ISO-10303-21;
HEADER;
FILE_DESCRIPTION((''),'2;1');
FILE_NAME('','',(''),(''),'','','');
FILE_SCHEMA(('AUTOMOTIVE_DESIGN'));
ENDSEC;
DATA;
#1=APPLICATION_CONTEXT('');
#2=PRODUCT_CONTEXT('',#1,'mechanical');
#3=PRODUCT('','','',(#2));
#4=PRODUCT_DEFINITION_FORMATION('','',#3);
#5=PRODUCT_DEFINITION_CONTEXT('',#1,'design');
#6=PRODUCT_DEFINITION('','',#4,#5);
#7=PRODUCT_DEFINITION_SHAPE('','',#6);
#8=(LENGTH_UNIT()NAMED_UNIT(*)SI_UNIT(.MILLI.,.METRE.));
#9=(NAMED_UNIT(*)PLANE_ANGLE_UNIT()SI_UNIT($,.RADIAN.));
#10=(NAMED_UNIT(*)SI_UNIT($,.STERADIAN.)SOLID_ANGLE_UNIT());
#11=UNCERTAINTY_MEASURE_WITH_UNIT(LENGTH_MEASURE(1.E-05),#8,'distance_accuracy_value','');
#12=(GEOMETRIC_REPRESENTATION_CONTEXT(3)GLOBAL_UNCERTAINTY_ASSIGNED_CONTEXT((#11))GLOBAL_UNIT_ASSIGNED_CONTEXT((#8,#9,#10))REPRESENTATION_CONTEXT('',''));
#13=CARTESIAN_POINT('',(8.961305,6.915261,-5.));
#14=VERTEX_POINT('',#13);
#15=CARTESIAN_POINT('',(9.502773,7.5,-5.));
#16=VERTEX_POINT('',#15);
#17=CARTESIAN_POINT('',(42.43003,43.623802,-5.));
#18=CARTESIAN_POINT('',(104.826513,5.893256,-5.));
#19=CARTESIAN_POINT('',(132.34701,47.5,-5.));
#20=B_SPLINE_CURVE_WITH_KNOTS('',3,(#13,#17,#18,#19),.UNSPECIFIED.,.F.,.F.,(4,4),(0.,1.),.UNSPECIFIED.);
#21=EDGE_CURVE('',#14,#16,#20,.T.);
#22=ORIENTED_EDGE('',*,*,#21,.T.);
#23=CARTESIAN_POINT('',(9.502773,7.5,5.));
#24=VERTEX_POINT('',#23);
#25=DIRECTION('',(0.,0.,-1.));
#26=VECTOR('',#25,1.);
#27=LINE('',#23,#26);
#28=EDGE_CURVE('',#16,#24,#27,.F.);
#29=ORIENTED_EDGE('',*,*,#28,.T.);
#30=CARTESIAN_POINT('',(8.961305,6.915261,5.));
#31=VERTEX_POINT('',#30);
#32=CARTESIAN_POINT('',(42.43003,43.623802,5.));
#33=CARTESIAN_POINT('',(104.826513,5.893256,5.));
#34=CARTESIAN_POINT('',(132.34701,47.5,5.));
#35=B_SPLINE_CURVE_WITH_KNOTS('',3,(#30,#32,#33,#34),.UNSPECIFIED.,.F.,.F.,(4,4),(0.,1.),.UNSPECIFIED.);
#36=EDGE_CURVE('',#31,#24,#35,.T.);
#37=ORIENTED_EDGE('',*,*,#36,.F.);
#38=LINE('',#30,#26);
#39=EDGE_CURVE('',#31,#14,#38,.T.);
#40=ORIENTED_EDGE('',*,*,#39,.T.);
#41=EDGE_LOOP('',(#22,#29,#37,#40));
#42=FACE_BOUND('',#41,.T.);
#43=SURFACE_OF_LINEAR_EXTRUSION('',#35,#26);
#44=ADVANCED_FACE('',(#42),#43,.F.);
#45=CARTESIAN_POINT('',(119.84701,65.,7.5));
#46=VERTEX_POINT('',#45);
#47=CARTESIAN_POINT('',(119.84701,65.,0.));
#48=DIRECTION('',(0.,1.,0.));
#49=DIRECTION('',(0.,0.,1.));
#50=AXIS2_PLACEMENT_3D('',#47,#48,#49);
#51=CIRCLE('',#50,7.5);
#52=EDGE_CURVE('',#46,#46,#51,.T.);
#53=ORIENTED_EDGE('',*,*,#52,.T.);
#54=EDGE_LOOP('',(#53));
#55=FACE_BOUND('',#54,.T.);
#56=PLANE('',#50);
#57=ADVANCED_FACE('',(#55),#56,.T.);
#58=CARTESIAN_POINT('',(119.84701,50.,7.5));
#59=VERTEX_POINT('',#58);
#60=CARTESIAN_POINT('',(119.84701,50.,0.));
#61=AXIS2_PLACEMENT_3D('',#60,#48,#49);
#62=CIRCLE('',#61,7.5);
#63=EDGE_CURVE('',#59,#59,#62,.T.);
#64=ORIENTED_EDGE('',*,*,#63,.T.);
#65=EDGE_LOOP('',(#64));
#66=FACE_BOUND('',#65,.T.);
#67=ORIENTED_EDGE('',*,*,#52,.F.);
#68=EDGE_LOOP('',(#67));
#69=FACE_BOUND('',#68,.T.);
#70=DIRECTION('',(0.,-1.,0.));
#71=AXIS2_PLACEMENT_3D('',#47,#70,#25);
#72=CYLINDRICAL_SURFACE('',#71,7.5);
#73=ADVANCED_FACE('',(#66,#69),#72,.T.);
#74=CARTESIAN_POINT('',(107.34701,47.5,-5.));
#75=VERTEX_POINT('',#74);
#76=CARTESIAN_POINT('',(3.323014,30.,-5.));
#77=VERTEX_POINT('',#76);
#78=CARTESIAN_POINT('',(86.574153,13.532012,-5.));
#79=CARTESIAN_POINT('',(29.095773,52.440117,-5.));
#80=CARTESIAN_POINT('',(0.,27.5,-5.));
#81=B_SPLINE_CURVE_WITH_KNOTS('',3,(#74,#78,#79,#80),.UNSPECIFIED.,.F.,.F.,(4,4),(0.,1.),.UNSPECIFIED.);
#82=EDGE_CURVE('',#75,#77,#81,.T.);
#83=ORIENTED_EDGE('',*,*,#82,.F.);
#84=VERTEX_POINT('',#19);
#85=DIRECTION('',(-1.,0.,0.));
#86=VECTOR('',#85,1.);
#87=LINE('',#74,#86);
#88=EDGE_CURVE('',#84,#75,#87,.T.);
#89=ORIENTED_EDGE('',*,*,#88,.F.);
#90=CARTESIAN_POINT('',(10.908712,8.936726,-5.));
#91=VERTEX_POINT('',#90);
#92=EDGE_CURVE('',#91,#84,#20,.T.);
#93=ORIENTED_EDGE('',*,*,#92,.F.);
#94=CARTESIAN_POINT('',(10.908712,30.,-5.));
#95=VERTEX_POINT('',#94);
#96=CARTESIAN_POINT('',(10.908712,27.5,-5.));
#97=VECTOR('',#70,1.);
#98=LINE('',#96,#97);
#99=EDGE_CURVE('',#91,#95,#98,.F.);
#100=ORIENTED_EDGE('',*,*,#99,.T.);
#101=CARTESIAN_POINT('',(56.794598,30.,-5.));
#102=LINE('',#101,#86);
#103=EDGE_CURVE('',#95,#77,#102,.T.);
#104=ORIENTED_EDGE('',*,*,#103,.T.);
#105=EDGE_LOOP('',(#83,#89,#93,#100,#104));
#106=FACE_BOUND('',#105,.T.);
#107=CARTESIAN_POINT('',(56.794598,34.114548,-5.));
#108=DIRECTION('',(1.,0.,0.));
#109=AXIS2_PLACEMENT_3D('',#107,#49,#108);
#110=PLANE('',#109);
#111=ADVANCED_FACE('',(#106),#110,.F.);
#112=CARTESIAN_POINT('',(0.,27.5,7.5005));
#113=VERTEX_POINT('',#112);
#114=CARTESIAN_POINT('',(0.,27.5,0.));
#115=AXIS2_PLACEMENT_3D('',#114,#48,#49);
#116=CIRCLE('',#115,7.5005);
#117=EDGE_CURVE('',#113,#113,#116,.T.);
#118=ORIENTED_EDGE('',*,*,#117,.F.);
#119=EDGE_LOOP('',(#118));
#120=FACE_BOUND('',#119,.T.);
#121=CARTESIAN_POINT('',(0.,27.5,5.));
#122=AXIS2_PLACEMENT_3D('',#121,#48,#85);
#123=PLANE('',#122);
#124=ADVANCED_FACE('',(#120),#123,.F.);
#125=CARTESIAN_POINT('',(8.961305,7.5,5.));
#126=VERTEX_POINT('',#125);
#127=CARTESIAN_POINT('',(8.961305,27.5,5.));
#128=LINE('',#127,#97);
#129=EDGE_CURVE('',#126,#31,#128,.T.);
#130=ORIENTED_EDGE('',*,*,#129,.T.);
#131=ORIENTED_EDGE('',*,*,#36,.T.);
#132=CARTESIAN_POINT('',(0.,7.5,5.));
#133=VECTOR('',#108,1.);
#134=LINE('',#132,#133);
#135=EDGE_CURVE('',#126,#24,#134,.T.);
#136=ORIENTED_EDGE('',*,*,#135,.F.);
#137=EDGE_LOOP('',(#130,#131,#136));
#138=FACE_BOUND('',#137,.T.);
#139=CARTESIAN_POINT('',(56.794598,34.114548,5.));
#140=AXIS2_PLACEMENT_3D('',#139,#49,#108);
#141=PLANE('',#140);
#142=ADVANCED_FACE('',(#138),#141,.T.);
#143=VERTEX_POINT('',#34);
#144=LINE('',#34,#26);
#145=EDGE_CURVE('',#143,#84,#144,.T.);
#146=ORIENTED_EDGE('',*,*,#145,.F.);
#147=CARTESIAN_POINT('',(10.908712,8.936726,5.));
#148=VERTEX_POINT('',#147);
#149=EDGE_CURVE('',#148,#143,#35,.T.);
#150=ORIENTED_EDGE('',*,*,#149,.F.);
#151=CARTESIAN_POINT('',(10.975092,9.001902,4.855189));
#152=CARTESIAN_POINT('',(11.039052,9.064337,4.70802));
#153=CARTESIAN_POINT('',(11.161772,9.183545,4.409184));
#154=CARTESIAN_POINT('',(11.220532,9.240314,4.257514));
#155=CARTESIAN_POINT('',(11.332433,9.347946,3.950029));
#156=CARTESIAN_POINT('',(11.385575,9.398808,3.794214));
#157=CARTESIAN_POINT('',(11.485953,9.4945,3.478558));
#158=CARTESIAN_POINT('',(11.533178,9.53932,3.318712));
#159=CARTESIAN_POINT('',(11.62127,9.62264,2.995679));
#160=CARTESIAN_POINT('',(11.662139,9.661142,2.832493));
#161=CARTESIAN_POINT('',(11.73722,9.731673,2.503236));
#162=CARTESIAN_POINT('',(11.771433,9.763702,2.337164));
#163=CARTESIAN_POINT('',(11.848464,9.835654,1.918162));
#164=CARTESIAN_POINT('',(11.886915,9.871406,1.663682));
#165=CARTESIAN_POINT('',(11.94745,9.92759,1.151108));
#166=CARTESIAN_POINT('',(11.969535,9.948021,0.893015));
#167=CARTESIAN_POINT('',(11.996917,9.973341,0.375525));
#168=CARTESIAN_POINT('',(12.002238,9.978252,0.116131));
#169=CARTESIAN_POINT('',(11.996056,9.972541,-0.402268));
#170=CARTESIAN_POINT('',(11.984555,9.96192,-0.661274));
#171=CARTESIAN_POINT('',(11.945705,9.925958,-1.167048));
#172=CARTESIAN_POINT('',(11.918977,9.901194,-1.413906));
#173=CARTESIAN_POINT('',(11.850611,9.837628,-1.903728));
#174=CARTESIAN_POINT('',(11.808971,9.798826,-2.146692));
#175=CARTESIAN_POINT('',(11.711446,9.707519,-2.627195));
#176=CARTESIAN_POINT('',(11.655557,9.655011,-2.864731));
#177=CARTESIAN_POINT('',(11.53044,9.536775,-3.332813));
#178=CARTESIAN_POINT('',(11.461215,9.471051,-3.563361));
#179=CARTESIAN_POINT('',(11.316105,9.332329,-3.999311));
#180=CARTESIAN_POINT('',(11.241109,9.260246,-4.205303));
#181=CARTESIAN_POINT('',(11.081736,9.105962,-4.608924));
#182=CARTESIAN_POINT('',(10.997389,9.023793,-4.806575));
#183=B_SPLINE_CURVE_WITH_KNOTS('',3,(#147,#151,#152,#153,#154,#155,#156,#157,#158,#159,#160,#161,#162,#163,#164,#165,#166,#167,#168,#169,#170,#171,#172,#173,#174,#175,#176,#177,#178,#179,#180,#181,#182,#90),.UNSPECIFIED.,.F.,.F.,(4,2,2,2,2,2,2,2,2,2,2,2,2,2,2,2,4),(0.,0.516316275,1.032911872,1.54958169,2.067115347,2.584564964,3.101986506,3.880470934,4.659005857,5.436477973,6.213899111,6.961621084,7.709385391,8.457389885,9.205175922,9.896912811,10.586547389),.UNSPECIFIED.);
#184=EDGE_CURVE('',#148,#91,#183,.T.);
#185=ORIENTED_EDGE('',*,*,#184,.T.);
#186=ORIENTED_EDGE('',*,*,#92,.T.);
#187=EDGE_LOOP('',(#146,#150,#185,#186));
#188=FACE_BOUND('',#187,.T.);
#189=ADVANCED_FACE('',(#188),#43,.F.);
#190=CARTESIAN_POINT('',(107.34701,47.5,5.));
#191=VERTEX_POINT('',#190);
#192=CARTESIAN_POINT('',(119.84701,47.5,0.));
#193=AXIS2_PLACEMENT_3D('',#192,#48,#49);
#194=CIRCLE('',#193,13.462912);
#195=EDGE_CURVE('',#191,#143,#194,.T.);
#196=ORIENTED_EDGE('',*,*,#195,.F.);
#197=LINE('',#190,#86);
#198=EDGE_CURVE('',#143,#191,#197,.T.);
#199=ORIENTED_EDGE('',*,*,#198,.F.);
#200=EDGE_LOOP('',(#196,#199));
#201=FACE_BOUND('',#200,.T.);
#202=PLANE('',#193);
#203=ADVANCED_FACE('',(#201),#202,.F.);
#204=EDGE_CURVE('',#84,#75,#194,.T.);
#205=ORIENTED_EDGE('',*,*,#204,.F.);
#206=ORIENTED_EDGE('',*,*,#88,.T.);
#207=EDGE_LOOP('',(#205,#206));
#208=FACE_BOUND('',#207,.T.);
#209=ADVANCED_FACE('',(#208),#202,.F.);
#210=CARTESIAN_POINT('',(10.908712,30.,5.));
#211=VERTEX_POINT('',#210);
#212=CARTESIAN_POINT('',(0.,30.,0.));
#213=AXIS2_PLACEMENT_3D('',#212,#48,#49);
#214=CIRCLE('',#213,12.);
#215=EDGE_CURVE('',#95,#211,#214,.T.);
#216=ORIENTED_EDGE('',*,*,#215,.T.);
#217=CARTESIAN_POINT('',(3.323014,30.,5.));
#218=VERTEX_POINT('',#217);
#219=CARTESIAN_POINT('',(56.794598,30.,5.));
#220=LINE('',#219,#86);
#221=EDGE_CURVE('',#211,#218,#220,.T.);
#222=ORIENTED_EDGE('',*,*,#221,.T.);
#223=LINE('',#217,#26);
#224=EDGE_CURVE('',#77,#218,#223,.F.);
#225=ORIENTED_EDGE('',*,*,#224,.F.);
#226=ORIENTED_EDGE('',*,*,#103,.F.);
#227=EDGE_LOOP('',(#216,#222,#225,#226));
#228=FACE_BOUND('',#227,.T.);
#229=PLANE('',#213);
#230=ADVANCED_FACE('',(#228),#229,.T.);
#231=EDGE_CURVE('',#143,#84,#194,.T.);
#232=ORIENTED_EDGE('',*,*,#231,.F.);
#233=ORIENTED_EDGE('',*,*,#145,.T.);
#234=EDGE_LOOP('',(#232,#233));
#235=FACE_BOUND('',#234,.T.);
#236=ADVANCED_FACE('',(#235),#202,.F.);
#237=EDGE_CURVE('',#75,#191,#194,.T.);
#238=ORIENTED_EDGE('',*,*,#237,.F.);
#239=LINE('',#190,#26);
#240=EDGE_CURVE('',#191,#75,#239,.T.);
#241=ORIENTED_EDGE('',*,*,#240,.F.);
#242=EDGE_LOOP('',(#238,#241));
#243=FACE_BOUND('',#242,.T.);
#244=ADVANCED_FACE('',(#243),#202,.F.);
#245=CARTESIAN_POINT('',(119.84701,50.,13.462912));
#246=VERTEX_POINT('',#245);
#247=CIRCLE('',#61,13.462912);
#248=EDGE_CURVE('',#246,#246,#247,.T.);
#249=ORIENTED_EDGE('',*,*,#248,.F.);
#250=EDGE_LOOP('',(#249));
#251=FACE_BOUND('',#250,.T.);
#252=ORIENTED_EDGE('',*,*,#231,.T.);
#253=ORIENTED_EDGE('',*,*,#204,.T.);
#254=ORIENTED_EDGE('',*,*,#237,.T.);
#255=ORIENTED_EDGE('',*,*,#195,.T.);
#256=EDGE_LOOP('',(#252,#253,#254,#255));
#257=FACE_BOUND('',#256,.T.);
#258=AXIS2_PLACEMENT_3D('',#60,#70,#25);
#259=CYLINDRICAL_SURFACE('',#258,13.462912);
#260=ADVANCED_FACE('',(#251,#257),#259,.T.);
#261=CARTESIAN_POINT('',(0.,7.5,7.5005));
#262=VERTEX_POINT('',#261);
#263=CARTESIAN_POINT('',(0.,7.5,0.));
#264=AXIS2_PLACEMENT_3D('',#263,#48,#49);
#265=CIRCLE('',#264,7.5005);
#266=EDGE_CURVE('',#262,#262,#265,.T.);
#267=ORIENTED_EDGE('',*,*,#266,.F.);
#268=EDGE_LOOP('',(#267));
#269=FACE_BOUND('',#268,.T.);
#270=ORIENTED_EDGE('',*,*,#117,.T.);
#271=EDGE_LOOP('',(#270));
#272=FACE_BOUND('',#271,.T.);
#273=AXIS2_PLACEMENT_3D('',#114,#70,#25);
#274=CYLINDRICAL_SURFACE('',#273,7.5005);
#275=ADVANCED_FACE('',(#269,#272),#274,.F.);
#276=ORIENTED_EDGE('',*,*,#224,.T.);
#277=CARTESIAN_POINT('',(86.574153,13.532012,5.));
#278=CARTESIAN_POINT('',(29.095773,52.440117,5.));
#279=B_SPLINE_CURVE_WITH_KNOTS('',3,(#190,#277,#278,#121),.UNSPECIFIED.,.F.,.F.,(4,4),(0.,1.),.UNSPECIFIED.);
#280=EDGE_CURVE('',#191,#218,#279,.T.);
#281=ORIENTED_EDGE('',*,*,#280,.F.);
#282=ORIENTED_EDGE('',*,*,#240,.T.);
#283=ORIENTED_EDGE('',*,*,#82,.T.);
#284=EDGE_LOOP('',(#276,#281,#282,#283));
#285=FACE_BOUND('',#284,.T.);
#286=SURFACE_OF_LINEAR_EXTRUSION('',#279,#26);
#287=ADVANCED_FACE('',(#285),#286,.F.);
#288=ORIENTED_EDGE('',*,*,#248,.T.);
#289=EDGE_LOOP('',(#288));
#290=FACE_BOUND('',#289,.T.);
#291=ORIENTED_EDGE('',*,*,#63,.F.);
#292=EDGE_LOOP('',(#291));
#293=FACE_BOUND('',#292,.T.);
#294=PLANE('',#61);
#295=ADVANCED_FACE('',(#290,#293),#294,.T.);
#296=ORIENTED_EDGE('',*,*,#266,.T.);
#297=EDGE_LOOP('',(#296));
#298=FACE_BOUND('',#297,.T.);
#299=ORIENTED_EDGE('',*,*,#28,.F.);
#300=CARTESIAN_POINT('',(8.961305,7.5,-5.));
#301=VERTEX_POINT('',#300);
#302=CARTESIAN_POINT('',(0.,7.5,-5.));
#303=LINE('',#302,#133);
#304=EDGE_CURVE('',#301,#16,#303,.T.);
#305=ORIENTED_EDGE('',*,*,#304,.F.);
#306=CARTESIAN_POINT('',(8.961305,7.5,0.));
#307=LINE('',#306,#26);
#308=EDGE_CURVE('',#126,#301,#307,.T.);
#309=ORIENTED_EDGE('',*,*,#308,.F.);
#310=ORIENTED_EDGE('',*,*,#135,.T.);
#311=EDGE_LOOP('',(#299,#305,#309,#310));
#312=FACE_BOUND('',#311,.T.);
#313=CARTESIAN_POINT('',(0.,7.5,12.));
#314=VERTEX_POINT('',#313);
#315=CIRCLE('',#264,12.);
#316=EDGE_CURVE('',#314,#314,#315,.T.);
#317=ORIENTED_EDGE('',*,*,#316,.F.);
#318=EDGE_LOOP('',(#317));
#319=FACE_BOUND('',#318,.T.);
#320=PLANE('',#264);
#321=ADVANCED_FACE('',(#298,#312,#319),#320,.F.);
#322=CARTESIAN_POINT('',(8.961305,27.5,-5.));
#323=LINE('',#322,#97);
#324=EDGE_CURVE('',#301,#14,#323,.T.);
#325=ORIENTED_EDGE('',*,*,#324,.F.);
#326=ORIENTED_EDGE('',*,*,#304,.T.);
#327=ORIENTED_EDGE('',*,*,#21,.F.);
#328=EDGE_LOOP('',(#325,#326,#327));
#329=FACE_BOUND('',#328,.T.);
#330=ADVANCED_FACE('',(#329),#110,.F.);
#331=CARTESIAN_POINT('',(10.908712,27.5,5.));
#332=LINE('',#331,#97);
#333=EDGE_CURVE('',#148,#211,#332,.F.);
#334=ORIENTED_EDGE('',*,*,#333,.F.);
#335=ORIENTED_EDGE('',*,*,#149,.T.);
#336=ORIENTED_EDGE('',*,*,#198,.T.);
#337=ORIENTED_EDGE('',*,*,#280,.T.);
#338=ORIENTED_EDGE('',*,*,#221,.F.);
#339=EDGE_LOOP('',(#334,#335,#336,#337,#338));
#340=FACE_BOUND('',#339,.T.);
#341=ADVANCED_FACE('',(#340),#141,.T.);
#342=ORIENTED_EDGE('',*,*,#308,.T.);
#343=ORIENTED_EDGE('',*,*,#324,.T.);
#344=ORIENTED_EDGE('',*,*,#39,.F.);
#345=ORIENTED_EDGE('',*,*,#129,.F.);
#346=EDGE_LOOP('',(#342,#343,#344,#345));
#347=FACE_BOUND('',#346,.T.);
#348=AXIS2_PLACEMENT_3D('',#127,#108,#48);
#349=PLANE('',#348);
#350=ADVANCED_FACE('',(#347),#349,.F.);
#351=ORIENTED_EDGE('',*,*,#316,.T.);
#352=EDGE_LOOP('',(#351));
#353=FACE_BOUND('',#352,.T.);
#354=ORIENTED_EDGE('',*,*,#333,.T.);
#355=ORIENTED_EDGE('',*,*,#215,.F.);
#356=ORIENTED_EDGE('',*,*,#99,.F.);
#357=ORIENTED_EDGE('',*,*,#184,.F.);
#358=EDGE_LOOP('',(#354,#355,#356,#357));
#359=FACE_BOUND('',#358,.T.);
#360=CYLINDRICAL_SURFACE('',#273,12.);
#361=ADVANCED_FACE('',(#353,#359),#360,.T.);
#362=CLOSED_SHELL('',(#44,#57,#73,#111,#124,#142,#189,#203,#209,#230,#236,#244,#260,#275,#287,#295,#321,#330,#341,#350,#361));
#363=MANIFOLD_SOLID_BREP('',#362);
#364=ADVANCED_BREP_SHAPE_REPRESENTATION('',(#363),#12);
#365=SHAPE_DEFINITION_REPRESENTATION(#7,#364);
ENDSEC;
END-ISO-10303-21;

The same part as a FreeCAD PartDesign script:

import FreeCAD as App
import Part
import Sketcher

V = App.Vector
Q = App.Units.Quantity

doc = App.newDocument("Part")
body = doc.addObject("PartDesign::Body", "Body")

sketch1 = doc.addObject("Sketcher::SketchObject", "Sketch")
body.addObject(sketch1)
sketch1.AttachmentSupport = (doc.XZ_Plane, [""])
sketch1.MapMode = "FlatFace"
sketch1.AttachmentOffset = App.Placement(V(0, 0, -7.5), App.Rotation())
sketch1.addGeometry([
    Part.Circle(V(0, 0, 0), V(0, 0, 1), 12),
    Part.Circle(V(0, 0, 0), V(0, 0, 1), 8),
], False)
sketch1.addConstraint([
    Sketcher.Constraint("Coincident", 0, 3, -1, 1),
    Sketcher.Constraint("Coincident", 1, 3, -1, 1),
    Sketcher.Constraint("Diameter", 0, Q("24 mm")),
    Sketcher.Constraint("Diameter", 1, Q("15.001 mm")),
])
pad1 = doc.addObject("PartDesign::Pad", "Pad")
body.addObject(pad1)
pad1.Profile = sketch1
pad1.Length = 20
pad1.Reversed = True

sketch2 = doc.addObject("Sketcher::SketchObject", "Sketch001")
body.addObject(sketch2)
sketch2.AttachmentSupport = (doc.XY_Plane, [""])
sketch2.MapMode = "FlatFace"
sketch2.addGeometry([
    Part.LineSegment(V(0, 27.5, 0), V(8.961305, 27.5, 0)),
    Part.LineSegment(V(8.961305, 27.5, 0), V(8.961305, 6.915261, 0)),
    Part.BSplineCurve([V(8.961305, 6.915261, 0), V(42.43003, 43.623802, 0), V(104.826513, 5.893256, 0), V(132.34701, 47.5, 0)], [4, 4], [0, 1], False, 3, [1, 1, 1, 1], False),
    Part.LineSegment(V(132.34701, 47.5, 0), V(107.34701, 47.5, 0)),
    Part.BSplineCurve([V(0, 27.5, 0), V(29.095773, 52.440117, 0), V(86.574153, 13.532012, 0), V(107.34701, 47.5, 0)], [4, 4], [0, 1], False, 3, [1, 1, 1, 1], False),
], False)
sketch2.addConstraint([
    Sketcher.Constraint("Block", 2),
    Sketcher.Constraint("Block", 4),
    Sketcher.Constraint("Coincident", 0, 2, 1, 1),
    Sketcher.Constraint("Coincident", 1, 2, 2, 1),
    Sketcher.Constraint("Coincident", 2, 2, 3, 1),
    Sketcher.Constraint("Coincident", 3, 2, 4, 2),
    Sketcher.Constraint("Coincident", 4, 1, 0, 1),
    Sketcher.Constraint("Horizontal", 0),
    Sketcher.Constraint("Vertical", 1),
])
pad2 = doc.addObject("PartDesign::Pad", "Pad001")
body.addObject(pad2)
pad2.Profile = sketch2
pad2.Length = 10
pad2.Midplane = True

sketch3 = doc.addObject("Sketcher::SketchObject", "Sketch002")
body.addObject(sketch3)
sketch3.AttachmentSupport = (doc.XZ_Plane, [""])
sketch3.MapMode = "FlatFace"
sketch3.AttachmentOffset = App.Placement(V(0, 0, -27.5), App.Rotation())
sketch3.addGeometry(Part.Circle(V(0, 0, 0), V(0, 0, 1), 12), False)
sketch3.addConstraint([
    Sketcher.Constraint("Coincident", 0, 3, -1, 1),
    Sketcher.Constraint("Diameter", 0, Q("24 mm")),
])
pad3 = doc.addObject("PartDesign::Pad", "Pad002")
body.addObject(pad3)
pad3.Profile = sketch3
pad3.Length = 2.5
pad3.Reversed = True

sketch4 = doc.addObject("Sketcher::SketchObject", "Sketch003")
body.addObject(sketch4)
sketch4.AttachmentSupport = (doc.XZ_Plane, [""])
sketch4.MapMode = "FlatFace"
sketch4.AttachmentOffset = App.Placement(V(0, 0, -47.5), App.Rotation())
sketch4.addGeometry(Part.Circle(V(120, 0, 0), V(0, 0, 1), 13), False)
sketch4.addConstraint([
    Sketcher.Constraint("PointOnObject", 0, 3, -1),
    Sketcher.Constraint("Diameter", 0, Q("26.925824 mm")),
    Sketcher.Constraint("DistanceX", -1, 1, 0, 3, Q("119.84701 mm")),
])
pad4 = doc.addObject("PartDesign::Pad", "Pad003")
body.addObject(pad4)
pad4.Profile = sketch4
pad4.Length = 2.5
pad4.Reversed = True

sketch5 = doc.addObject("Sketcher::SketchObject", "Sketch004")
body.addObject(sketch5)
sketch5.AttachmentSupport = (doc.XZ_Plane, [""])
sketch5.MapMode = "FlatFace"
sketch5.AttachmentOffset = App.Placement(V(0, 0, -50), App.Rotation())
sketch5.addGeometry(Part.Circle(V(120, 0, 0), V(0, 0, 1), 8), False)
sketch5.addConstraint([
    Sketcher.Constraint("PointOnObject", 0, 3, -1),
    Sketcher.Constraint("Diameter", 0, Q("15 mm")),
    Sketcher.Constraint("DistanceX", -1, 1, 0, 3, Q("119.84701 mm")),
])
pad5 = doc.addObject("PartDesign::Pad", "Pad004")
body.addObject(pad5)
pad5.Profile = sketch5
pad5.Length = 15
pad5.Reversed = True

doc.recompute()
